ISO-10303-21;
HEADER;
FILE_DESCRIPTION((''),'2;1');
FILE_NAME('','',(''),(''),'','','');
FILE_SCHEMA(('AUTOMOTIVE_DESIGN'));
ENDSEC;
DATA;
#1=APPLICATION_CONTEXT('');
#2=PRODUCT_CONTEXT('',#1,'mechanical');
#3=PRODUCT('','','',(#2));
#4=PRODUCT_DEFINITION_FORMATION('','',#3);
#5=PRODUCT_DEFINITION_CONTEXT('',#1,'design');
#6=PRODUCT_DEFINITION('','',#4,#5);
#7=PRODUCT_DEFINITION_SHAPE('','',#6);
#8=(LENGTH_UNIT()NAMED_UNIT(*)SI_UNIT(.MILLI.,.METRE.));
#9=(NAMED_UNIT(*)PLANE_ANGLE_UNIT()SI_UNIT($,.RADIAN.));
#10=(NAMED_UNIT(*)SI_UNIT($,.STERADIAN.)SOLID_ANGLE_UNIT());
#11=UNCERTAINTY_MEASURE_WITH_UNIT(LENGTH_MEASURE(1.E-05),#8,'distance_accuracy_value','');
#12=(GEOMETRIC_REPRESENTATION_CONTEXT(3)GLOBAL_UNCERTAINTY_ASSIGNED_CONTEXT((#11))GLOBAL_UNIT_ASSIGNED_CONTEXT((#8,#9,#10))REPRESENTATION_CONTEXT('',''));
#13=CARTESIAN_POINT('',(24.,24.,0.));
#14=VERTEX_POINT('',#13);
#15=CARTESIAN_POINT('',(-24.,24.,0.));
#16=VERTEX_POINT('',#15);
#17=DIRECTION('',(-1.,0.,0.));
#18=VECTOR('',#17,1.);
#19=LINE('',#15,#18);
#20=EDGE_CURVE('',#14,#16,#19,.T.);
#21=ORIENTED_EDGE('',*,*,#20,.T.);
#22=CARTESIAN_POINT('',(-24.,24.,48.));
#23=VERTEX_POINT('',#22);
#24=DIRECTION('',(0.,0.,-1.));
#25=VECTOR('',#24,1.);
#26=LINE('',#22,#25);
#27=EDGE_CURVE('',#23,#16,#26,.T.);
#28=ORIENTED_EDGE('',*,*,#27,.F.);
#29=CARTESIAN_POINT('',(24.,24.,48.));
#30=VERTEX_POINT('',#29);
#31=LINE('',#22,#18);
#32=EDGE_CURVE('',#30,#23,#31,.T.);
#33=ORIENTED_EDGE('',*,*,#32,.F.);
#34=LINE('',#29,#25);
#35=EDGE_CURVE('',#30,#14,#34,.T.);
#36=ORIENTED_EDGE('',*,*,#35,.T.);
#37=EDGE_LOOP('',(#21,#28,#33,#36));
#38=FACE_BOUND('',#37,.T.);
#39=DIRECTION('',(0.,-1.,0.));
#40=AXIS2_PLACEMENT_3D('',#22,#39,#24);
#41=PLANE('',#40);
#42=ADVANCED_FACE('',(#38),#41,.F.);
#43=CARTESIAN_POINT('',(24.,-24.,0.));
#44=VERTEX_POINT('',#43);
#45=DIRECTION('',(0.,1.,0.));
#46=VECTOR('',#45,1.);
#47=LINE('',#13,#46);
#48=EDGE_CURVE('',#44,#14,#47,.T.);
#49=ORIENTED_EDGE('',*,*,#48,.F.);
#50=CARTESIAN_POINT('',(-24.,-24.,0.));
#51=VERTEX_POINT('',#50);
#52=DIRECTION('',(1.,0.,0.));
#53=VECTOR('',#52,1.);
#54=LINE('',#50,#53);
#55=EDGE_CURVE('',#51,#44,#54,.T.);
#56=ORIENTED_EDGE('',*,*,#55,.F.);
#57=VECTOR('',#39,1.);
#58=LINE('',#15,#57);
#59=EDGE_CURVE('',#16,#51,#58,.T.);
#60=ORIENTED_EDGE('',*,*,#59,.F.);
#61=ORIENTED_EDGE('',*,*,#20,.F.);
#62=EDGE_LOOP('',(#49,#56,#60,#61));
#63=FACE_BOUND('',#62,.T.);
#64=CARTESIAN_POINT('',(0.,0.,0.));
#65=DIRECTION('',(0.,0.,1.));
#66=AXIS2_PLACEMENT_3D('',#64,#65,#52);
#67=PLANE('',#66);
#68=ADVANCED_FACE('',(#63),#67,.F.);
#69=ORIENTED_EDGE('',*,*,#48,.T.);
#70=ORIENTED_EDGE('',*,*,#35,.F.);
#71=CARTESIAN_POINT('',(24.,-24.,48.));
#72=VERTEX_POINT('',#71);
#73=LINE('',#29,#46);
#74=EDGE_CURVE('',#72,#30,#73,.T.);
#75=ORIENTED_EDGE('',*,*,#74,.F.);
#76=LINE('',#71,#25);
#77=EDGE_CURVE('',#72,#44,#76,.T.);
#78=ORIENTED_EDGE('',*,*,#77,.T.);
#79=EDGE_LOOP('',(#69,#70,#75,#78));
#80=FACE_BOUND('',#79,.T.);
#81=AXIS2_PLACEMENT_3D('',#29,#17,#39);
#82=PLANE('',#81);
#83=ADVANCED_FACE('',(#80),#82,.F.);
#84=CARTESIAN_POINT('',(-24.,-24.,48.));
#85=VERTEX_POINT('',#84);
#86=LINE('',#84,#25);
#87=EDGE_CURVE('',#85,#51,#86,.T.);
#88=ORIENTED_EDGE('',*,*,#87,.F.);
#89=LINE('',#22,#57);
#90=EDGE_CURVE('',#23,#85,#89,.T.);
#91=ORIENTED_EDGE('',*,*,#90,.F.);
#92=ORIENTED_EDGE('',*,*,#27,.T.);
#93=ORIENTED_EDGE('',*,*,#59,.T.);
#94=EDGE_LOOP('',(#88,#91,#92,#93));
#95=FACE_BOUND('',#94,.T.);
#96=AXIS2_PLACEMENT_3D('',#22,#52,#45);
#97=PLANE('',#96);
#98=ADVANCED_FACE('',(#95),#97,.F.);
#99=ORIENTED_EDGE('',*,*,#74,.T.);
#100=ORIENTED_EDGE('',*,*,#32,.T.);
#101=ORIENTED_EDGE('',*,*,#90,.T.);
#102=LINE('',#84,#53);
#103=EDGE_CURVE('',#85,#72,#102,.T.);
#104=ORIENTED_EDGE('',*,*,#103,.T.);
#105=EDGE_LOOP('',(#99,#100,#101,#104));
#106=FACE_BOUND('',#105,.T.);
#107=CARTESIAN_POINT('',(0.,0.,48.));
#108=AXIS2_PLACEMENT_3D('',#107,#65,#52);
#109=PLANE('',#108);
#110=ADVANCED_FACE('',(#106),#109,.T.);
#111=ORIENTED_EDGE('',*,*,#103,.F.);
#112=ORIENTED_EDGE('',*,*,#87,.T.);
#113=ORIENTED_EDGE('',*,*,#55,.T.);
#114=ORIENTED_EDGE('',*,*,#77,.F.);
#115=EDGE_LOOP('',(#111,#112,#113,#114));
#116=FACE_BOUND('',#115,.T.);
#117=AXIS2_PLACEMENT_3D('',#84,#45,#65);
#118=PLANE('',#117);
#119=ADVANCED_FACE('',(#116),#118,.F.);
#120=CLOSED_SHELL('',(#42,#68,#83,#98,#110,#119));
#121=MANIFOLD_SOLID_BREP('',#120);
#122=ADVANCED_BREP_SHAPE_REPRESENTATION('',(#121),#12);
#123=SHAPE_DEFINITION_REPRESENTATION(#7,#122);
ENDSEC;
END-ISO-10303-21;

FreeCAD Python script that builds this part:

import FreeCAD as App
import Part
import Sketcher

V = App.Vector
Q = App.Units.Quantity

doc = App.newDocument("Part")
params = doc.addObject("Spreadsheet::Sheet", "Params")
for row, (alias, value) in enumerate([
    ("sketch1_width", "48 mm"),
    ("pad1_length", "48 mm"),
], start=1):
    params.set(f"A{row}", alias)
    params.set(f"B{row}", "=" + value)
    params.setAlias(f"B{row}", alias)

body = doc.addObject("PartDesign::Body", "Body")

sketch1 = body.newObject("Sketcher::SketchObject", "Sketch")
sketch1.AttachmentSupport = (doc.getObject("XY_Plane"), [""])
sketch1.MapMode = "FlatFace"
sketch1.addGeometry(Part.LineSegment(V(-24, 24, 0), V(-24, -24, 0)), False)
sketch1.addGeometry(Part.LineSegment(V(-24, -24, 0), V(24, -24, 0)), False)
sketch1.addGeometry(Part.LineSegment(V(24, -24, 0), V(24, 24, 0)), False)
sketch1.addGeometry(Part.LineSegment(V(24, 24, 0), V(-24, 24, 0)), False)
sketch1.addConstraint(Sketcher.Constraint("Coincident", 0, 2, 1, 1))
sketch1.addConstraint(Sketcher.Constraint("Coincident", 1, 2, 2, 1))
sketch1.addConstraint(Sketcher.Constraint("Coincident", 2, 2, 3, 1))
sketch1.addConstraint(Sketcher.Constraint("Coincident", 3, 2, 0, 1))
sketch1.addConstraint(Sketcher.Constraint("Vertical", 0))
sketch1.addConstraint(Sketcher.Constraint("Horizontal", 1))
sketch1.addConstraint(Sketcher.Constraint("Vertical", 2))
sketch1.addConstraint(Sketcher.Constraint("Horizontal", 3))
sketch1.addConstraint(Sketcher.Constraint("Symmetric", 0, 2, 2, 2, -1, 1))
sketch1.addConstraint(Sketcher.Constraint("Equal", 3, 0))
sketch1.addConstraint(Sketcher.Constraint("DistanceX", 1, 1, 1, 2, Q("48 mm")))
sketch1.setExpression("Constraints[10]", "Params.sketch1_width")
pad1 = body.newObject("PartDesign::Pad", "Pad")
pad1.Profile = sketch1
pad1.setExpression("Length", "Params.pad1_length")

doc.recompute()
